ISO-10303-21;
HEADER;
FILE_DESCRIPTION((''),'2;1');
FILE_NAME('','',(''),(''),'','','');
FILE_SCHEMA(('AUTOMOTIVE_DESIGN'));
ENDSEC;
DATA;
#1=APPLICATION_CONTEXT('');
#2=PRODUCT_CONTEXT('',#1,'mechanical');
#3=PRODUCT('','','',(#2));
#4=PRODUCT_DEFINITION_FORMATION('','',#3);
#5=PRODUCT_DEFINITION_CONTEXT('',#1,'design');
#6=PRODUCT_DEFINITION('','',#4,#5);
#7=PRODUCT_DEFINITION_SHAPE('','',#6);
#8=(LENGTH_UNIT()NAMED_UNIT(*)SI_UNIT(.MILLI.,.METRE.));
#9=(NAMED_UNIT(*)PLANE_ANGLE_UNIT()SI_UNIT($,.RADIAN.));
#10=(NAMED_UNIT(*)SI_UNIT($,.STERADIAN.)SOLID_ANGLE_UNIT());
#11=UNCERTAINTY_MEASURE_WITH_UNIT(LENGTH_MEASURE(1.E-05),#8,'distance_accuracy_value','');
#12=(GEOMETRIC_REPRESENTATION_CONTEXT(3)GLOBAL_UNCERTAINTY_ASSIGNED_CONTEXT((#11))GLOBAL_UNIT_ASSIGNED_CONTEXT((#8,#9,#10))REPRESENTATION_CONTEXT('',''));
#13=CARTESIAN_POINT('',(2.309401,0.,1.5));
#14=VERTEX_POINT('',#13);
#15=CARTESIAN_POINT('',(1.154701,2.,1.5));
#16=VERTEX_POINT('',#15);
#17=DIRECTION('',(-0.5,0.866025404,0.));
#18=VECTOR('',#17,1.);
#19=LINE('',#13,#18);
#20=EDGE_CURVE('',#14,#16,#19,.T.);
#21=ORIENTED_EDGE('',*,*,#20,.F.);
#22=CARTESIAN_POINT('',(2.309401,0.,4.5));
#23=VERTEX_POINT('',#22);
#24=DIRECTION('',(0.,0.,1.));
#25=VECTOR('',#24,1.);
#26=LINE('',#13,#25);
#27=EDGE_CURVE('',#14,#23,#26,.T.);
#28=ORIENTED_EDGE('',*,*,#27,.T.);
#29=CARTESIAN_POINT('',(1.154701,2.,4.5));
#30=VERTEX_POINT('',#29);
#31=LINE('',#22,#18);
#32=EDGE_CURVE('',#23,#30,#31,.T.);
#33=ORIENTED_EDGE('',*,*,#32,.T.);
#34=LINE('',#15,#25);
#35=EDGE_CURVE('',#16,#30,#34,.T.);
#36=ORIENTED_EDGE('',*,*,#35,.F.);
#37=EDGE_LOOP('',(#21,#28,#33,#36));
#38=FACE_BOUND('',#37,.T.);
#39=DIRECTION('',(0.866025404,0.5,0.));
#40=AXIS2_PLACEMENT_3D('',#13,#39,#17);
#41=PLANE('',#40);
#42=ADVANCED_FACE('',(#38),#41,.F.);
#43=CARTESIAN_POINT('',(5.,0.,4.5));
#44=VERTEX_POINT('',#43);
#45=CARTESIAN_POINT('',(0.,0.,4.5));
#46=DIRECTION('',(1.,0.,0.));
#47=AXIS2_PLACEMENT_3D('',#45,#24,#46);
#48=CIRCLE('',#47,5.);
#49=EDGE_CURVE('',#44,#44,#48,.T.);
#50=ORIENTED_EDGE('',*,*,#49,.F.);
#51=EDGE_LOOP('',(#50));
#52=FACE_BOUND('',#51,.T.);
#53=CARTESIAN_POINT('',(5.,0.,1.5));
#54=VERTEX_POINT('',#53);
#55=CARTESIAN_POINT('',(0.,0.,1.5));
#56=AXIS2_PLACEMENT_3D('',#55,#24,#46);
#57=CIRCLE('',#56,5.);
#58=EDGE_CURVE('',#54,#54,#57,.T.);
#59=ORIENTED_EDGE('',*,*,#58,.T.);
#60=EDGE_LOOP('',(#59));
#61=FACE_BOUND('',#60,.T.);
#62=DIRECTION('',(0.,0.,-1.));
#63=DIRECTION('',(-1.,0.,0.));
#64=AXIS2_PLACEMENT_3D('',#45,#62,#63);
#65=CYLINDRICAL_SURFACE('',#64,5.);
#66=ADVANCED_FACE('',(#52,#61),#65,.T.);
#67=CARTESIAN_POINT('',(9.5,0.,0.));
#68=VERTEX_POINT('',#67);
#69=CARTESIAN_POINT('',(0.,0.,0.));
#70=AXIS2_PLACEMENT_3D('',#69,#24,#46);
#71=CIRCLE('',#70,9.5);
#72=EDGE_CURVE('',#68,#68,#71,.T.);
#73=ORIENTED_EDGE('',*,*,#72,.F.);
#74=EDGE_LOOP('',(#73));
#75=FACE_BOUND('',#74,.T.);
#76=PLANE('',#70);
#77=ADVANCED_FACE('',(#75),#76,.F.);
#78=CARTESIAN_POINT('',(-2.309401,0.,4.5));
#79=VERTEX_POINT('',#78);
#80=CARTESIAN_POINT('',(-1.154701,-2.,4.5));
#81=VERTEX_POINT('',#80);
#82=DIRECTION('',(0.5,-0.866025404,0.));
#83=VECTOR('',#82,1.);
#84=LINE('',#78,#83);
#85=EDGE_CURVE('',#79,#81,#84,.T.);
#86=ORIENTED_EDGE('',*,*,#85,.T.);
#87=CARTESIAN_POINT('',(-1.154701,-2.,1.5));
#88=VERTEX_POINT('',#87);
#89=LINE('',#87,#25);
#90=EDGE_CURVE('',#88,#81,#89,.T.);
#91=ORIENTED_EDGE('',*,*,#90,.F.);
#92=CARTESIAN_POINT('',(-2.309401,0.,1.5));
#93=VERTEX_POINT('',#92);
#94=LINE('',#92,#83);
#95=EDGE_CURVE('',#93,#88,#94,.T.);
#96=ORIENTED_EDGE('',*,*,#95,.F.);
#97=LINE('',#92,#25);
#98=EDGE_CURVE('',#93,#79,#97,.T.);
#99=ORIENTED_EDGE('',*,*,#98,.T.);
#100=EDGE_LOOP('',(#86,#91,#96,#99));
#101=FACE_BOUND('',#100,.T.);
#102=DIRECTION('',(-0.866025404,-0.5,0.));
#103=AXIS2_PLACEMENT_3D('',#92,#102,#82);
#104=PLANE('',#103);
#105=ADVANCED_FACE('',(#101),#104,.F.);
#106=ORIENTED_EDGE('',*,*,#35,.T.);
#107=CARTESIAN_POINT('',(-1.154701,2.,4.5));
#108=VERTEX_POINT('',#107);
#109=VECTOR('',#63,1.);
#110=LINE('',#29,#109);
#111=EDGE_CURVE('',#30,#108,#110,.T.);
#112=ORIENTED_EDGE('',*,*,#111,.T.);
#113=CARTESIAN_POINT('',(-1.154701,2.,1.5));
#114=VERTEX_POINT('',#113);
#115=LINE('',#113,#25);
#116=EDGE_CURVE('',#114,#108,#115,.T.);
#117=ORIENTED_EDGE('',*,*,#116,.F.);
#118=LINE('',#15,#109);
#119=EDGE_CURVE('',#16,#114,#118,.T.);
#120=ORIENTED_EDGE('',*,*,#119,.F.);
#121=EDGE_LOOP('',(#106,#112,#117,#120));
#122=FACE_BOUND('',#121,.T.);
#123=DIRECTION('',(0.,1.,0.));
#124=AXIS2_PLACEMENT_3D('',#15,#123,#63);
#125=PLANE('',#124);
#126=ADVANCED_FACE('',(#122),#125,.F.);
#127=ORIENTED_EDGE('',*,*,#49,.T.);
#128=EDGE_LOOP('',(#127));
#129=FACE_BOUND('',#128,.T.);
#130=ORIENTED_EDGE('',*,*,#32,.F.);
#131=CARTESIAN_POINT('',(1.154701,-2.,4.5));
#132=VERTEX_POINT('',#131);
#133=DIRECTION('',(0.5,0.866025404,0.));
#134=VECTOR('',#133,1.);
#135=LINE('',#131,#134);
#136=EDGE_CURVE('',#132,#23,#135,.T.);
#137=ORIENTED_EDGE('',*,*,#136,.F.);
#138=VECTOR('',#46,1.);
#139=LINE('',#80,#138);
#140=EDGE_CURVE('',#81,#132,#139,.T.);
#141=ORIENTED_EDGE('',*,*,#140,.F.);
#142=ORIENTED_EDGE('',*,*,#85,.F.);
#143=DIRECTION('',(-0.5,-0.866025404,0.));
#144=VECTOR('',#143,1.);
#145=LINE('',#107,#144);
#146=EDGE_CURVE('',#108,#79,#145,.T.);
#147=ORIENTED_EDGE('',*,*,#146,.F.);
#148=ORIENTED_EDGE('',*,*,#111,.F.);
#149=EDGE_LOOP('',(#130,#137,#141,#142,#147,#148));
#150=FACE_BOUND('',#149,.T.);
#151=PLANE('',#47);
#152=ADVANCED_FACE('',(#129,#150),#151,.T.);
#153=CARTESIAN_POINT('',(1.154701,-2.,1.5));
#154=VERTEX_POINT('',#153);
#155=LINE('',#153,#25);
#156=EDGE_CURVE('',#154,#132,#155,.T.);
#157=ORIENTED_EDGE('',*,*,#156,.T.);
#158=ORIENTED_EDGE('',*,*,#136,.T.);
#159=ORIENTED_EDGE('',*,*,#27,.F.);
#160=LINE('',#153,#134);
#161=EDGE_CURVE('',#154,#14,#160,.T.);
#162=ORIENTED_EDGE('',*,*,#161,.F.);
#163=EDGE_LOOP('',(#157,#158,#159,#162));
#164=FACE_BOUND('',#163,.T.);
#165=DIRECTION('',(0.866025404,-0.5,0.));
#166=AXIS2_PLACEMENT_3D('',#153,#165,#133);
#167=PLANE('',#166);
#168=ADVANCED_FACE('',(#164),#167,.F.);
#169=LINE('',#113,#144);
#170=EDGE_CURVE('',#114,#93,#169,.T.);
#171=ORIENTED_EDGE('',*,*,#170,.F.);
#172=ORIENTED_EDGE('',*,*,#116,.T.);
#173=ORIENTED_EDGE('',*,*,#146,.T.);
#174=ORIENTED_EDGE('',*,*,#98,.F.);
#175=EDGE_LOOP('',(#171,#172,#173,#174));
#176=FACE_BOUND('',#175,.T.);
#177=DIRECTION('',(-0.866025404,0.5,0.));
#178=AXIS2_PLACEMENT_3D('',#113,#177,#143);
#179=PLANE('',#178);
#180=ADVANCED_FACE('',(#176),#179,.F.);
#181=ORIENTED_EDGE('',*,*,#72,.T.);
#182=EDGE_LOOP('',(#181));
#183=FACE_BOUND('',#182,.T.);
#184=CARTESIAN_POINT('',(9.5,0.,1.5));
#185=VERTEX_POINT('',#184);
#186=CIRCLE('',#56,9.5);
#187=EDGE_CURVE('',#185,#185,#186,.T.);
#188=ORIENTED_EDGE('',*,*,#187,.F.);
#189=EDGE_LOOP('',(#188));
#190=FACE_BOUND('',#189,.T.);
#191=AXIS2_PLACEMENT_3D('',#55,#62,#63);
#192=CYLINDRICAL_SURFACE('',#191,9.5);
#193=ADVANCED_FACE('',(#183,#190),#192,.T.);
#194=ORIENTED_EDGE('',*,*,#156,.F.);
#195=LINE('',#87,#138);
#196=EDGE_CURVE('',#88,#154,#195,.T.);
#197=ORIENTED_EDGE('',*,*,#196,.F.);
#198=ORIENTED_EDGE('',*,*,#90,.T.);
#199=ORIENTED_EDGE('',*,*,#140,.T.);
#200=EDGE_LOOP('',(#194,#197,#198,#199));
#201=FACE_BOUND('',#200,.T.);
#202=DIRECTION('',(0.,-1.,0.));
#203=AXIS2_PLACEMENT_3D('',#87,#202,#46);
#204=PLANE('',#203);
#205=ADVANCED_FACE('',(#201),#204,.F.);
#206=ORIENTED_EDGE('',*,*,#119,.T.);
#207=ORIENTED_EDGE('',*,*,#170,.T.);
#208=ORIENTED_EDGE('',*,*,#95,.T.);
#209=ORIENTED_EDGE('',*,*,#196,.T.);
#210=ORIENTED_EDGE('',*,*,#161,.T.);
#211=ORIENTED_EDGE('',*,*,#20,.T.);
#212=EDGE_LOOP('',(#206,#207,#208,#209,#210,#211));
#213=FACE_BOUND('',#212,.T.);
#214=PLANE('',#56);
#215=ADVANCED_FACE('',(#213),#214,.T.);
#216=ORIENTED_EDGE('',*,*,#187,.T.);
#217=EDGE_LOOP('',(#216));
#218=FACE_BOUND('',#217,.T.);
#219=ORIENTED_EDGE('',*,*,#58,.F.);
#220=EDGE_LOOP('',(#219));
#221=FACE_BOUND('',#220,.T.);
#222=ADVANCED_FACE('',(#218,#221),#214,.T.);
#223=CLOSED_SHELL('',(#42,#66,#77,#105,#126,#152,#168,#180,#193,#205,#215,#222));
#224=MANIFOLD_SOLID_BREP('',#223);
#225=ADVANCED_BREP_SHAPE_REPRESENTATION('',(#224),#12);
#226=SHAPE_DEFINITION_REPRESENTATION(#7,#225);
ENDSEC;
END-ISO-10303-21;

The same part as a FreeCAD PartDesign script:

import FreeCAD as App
import Part
import Sketcher
Q = App.Units.Quantity

doc = App.newDocument("Part")
body = doc.addObject("PartDesign::Body", "Body")

# Sketch on XY plane
sketch1 = body.newObject("Sketcher::SketchObject", "Sketch")
sketch1.AttachmentSupport = (doc.getObject("XY_Plane"), [""])
sketch1.MapMode = "FlatFace"
sketch1.addGeometry(Part.Circle(App.Vector(0, 0, 0), App.Vector(0, 0, 1), 10), False)
sketch1.addConstraint(Sketcher.Constraint("Coincident", 0, 3, -1, 1))
sketch1.addConstraint(Sketcher.Constraint("Diameter", 0, 19.0))
pad1 = body.newObject("PartDesign::Pad", "Pad")
pad1.Profile = sketch1
pad1.Length = 1.5

# Sketch on XY plane
sketch2 = body.newObject("Sketcher::SketchObject", "Sketch001")
sketch2.AttachmentSupport = (doc.getObject("XY_Plane"), [""])
sketch2.MapMode = "FlatFace"
sketch2.AttachmentOffset = App.Placement(App.Vector(0, 0, 1.5), App.Rotation())
sketch2.addGeometry(Part.Circle(App.Vector(0, 0, 0), App.Vector(0, 0, 1), 5), False)
sketch2.addConstraint(Sketcher.Constraint("Coincident", 0, 3, -1, 1))
sketch2.addConstraint(Sketcher.Constraint("Diameter", 0, 10.0))
pad2 = body.newObject("PartDesign::Pad", "Pad001")
pad2.Profile = sketch2
pad2.Length = 3

# Sketch on XY plane
sketch3 = body.newObject("Sketcher::SketchObject", "Sketch002")
sketch3.AttachmentSupport = (doc.getObject("XY_Plane"), [""])
sketch3.MapMode = "FlatFace"
sketch3.AttachmentOffset = App.Placement(App.Vector(0, 0, 4.5), App.Rotation())
sketch3.addGeometry(Part.LineSegment(App.Vector(1.2, 2, 0), App.Vector(-1.2, 2, 0)), False)
sketch3.addGeometry(Part.LineSegment(App.Vector(-1.2, 2, 0), App.Vector(-2.3, 0, 0)), False)
sketch3.addGeometry(Part.LineSegment(App.Vector(-2.3, 0, 0), App.Vector(-1.2, -2, 0)), False)
sketch3.addGeometry(Part.LineSegment(App.Vector(-1.2, -2, 0), App.Vector(1.2, -2, 0)), False)
sketch3.addGeometry(Part.LineSegment(App.Vector(1.2, -2, 0), App.Vector(2.3, 0, 0)), False)
sketch3.addGeometry(Part.LineSegment(App.Vector(2.3, 0, 0), App.Vector(1.2, 2, 0)), False)
sketch3.addConstraint(Sketcher.Constraint("Coincident", 0, 2, 1, 1))
sketch3.addConstraint(Sketcher.Constraint("Coincident", 1, 2, 2, 1))
sketch3.addConstraint(Sketcher.Constraint("Coincident", 2, 2, 3, 1))
sketch3.addConstraint(Sketcher.Constraint("Coincident", 3, 2, 4, 1))
sketch3.addConstraint(Sketcher.Constraint("Coincident", 4, 2, 5, 1))
sketch3.addConstraint(Sketcher.Constraint("Coincident", 5, 2, 0, 1))
sketch3.addConstraint(Sketcher.Constraint("Horizontal", 0))
sketch3.addConstraint(Sketcher.Constraint("Horizontal", 3))
sketch3.addConstraint(Sketcher.Constraint("Symmetric", 0, 2, 3, 2, -1, 1))
sketch3.addConstraint(Sketcher.Constraint("Symmetric", 1, 2, 4, 2, -1, 1))
sketch3.addConstraint(Sketcher.Constraint("PointOnObject", 1, 2, -1))
sketch3.addConstraint(Sketcher.Constraint("Parallel", 2, 5))
sketch3.addConstraint(Sketcher.Constraint("Vertical", 0, 2, 2, 2))
sketch3.addConstraint(Sketcher.Constraint("Angle", 1, Q("-120 deg")))
sketch3.addConstraint(Sketcher.Constraint("DistanceY", -1, 1, 0, 2, 2.0))
sketch3.addConstraint(Sketcher.Constraint("DistanceX", 0, 2, 0, 1, 2.309401))
pocket1 = body.newObject("PartDesign::Pocket", "Pocket")
pocket1.Profile = sketch3
pocket1.Length = 3

doc.recompute()
